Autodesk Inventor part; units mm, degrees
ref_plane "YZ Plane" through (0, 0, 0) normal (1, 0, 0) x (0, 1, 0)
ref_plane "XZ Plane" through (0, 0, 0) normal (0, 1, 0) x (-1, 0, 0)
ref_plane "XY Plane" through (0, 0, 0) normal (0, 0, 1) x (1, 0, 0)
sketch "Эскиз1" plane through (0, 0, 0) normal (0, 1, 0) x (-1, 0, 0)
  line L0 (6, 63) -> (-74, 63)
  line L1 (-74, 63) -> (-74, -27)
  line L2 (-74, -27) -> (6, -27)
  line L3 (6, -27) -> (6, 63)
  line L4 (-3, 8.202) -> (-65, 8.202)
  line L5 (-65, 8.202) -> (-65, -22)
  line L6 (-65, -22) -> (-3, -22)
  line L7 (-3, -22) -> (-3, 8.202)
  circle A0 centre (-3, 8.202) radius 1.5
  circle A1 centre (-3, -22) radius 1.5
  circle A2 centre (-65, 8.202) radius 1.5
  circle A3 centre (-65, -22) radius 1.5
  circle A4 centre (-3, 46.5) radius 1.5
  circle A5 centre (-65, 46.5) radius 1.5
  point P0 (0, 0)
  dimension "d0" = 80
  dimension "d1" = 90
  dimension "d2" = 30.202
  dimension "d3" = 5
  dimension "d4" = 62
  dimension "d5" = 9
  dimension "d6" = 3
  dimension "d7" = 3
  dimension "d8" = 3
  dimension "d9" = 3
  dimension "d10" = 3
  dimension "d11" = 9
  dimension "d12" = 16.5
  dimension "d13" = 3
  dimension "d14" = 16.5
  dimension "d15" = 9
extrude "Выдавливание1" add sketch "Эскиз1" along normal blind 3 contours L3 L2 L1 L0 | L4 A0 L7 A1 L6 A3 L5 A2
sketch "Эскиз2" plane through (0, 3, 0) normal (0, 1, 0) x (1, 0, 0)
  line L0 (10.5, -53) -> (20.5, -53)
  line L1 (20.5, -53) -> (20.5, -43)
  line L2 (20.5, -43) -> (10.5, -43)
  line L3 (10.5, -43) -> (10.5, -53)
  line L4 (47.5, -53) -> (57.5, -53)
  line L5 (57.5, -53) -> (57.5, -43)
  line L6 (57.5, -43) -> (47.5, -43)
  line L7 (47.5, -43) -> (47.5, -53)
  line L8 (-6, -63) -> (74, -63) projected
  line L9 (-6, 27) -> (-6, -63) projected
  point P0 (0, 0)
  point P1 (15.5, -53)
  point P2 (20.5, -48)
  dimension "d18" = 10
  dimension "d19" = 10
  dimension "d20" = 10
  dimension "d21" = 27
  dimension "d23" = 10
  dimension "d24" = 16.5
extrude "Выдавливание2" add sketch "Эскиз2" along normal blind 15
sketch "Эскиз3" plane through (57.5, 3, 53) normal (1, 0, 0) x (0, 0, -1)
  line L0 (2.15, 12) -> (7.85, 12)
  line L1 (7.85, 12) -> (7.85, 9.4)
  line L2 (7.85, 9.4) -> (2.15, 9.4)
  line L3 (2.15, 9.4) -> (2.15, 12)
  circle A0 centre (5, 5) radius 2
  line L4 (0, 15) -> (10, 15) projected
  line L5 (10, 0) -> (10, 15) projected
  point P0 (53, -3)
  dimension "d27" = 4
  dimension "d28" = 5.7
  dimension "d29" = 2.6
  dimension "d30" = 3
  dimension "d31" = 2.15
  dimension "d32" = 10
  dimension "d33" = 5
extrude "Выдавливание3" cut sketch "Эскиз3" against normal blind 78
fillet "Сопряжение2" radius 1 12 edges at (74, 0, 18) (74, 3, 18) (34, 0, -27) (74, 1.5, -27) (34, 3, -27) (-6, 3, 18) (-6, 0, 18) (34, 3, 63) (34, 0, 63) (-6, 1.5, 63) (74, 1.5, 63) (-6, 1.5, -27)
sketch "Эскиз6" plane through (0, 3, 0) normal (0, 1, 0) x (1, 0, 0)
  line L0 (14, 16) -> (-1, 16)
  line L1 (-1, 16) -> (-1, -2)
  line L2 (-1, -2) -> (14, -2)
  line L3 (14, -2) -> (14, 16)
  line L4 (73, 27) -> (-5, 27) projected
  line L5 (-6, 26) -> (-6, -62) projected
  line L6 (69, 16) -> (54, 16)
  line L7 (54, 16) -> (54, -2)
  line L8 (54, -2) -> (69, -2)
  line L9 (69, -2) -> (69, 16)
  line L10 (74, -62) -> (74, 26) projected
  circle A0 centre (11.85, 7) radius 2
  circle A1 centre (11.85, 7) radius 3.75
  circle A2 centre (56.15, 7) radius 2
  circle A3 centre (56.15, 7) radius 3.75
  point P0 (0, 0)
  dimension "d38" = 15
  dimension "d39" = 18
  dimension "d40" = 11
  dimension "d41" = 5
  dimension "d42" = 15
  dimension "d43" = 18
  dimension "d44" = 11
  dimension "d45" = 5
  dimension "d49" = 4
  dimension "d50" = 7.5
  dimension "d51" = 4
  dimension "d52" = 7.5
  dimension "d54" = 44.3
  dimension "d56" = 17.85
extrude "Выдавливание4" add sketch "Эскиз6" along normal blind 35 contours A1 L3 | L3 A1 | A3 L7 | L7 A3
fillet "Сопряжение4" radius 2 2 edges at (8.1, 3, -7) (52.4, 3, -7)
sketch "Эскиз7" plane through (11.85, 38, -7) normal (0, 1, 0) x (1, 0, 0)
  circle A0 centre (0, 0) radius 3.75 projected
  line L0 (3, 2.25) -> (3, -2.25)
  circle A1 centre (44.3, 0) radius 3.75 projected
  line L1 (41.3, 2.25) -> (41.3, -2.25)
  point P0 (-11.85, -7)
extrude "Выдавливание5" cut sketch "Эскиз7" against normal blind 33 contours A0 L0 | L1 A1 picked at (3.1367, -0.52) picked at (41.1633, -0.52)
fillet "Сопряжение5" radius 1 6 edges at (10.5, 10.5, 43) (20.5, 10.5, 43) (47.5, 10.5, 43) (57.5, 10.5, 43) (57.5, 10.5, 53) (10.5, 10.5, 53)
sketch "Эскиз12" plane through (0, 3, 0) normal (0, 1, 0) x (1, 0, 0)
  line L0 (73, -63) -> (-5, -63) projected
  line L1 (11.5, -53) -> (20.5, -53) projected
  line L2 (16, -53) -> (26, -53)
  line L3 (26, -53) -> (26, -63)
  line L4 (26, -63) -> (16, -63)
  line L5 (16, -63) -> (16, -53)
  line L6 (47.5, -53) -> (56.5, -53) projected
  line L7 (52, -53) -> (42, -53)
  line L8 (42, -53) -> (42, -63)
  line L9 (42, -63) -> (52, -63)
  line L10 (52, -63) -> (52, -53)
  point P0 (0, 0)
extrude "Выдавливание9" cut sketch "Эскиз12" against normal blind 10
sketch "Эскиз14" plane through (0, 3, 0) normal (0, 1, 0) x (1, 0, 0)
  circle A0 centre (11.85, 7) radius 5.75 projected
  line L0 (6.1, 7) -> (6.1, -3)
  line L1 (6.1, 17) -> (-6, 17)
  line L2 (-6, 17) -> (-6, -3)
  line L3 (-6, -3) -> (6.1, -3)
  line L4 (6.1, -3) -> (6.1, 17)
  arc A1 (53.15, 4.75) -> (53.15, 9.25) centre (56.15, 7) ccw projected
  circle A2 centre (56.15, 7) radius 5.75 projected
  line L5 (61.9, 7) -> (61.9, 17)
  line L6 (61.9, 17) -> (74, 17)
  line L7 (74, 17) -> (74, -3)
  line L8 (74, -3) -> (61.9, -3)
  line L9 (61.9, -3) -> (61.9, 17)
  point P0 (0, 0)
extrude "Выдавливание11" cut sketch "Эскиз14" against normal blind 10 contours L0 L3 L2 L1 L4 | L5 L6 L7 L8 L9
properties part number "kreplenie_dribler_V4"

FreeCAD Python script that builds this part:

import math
import FreeCAD as App
import Part
import Sketcher
from FreeCAD import Vector


def edges_at(feature, points):
    """Names of the edges that pass closest to the given points."""
    edges = feature.Shape.Edges
    near = lambda p: min(range(len(edges)), key=lambda i: edges[i].distToShape(Part.Vertex(*p))[0])
    return sorted({f"Edge{near(p) + 1}" for p in points})


def add_polygon(sketch, points):
    """Adds a closed chain of lines whose ends are joined by coincident constraints."""
    first, n = sketch.GeometryCount, len(points)
    for a, b in zip(points, points[1:] + points[:1]):
        sketch.addGeometry(Part.LineSegment(App.Vector(*a, 0), App.Vector(*b, 0)), False)
    for i in range(n):
        sketch.addConstraint(Sketcher.Constraint("Coincident", first + i, 2, first + (i + 1) % n, 1))

doc = App.newDocument("Part")
body = doc.addObject("PartDesign::Body", "Body")

sketch1 = doc.addObject("Sketcher::SketchObject", "Sketch")
body.addObject(sketch1)
sketch1.AttachmentSupport = (doc.XZ_Plane, [""])
sketch1.MapMode = "FlatFace"
add_polygon(sketch1, [(-6, -27), (-6, 63), (74, 63), (74, -27)])
sketch1.addGeometry(Part.Circle(Vector(65, 8.202, 0), Vector(0, 0, 1), 1.5), False)
sketch1.addGeometry(Part.Circle(Vector(65, -22, 0), Vector(0, 0, 1), 1.5), False)
sketch1.addGeometry(Part.Circle(Vector(3, -22, 0), Vector(0, 0, 1), 1.5), False)
sketch1.addGeometry(Part.Circle(Vector(3, 8.202, 0), Vector(0, 0, 1), 1.5), False)
sketch1.addGeometry(Part.Circle(Vector(65, 46.5, 0), Vector(0, 0, 1), 1.5), False)
sketch1.addGeometry(Part.Circle(Vector(3, 46.5, 0), Vector(0, 0, 1), 1.5), False)
sketch1.addConstraint(Sketcher.Constraint("Vertical", 0))
sketch1.addConstraint(Sketcher.Constraint("Horizontal", 1))
sketch1.addConstraint(Sketcher.Constraint("Vertical", 2))
sketch1.addConstraint(Sketcher.Constraint("Horizontal", 3))
sketch1.addConstraint(Sketcher.Constraint("Equal", 4, 5))
sketch1.addConstraint(Sketcher.Constraint("Equal", 5, 6))
sketch1.addConstraint(Sketcher.Constraint("Equal", 6, 7))
sketch1.addConstraint(Sketcher.Constraint("Equal", 7, 8))
sketch1.addConstraint(Sketcher.Constraint("Equal", 8, 9))
sketch1.addConstraint(Sketcher.Constraint("Horizontal", 5, 3, 6, 3))
sketch1.addConstraint(Sketcher.Constraint("Horizontal", 4, 3, 7, 3))
sketch1.addConstraint(Sketcher.Constraint("Horizontal", 8, 3, 9, 3))
sketch1.addConstraint(Sketcher.Constraint("Vertical", 4, 3, 5, 3))
sketch1.addConstraint(Sketcher.Constraint("Vertical", 6, 3, 7, 3))
sketch1.addConstraint(Sketcher.Constraint("Vertical", 5, 3, 8, 3))
sketch1.addConstraint(Sketcher.Constraint("Vertical", 7, 3, 9, 3))
sketch1.addConstraint(Sketcher.Constraint("Diameter", 4, 3.0))
sketch1.addConstraint(Sketcher.Constraint("DistanceX", 1, 1, 1, 2, 80.0))
sketch1.addConstraint(Sketcher.Constraint("DistanceY", 0, 1, 0, 2, 90.0))
sketch1.addConstraint(Sketcher.Constraint("DistanceX", -1, 1, 6, 3, 3.0))
sketch1.addConstraint(Sketcher.Constraint("DistanceX", 6, 3, 5, 3, 62.0))
sketch1.addConstraint(Sketcher.Constraint("DistanceX", 0, 2, 9, 3, 9.0))
sketch1.addConstraint(Sketcher.Constraint("DistanceY", 2, 2, 5, 3, 5.0))
sketch1.addConstraint(Sketcher.Constraint("DistanceY", 9, 3, 0, 2, 16.5))
sketch1.addConstraint(Sketcher.Constraint("DistanceY", 5, 3, -1, 1, 22.0))
sketch1.addConstraint(Sketcher.Constraint("DistanceY", 5, 3, 4, 3, 30.202))
pad1 = doc.addObject("PartDesign::Pad", "Pad")
body.addObject(pad1)
pad1.Profile = sketch1
pad1.Length = 3
pad1.Reversed = True

sketch2 = doc.addObject("Sketcher::SketchObject", "Sketch001")
body.addObject(sketch2)
sketch2.AttachmentSupport = (doc.XZ_Plane, [""])
sketch2.MapMode = "FlatFace"
sketch2.AttachmentOffset = App.Placement(Vector(0, 0, -3), App.Rotation())
add_polygon(sketch2, [(10.5, 43), (10.5, 53), (20.5, 53), (20.5, 43)])
add_polygon(sketch2, [(47.5, 43), (47.5, 53), (57.5, 53), (57.5, 43)])
sketch2.addConstraint(Sketcher.Constraint("Vertical", 0))
sketch2.addConstraint(Sketcher.Constraint("Horizontal", 1))
sketch2.addConstraint(Sketcher.Constraint("Vertical", 2))
sketch2.addConstraint(Sketcher.Constraint("Horizontal", 3))
sketch2.addConstraint(Sketcher.Constraint("Vertical", 4))
sketch2.addConstraint(Sketcher.Constraint("Horizontal", 5))
sketch2.addConstraint(Sketcher.Constraint("Vertical", 6))
sketch2.addConstraint(Sketcher.Constraint("Horizontal", 7))
sketch2.addConstraint(Sketcher.Constraint("Horizontal", 1, 2, 4, 2))
sketch2.addConstraint(Sketcher.Constraint("Horizontal", 3, 2, 6, 2))
sketch2.addConstraint(Sketcher.Constraint("Equal", 3, 5))
sketch2.addConstraint(Sketcher.Constraint("Equal", 7, 0))
sketch2.addConstraint(Sketcher.Constraint("DistanceX", 1, 1, 1, 2, 10.0))
sketch2.addConstraint(Sketcher.Constraint("DistanceX", 1, 2, 4, 2, 27.0))
sketch2.addConstraint(Sketcher.Constraint("DistanceY", -1, 1, 0, 2, 53.0))
sketch2.addConstraint(Sketcher.Constraint("DistanceX", -1, 1, 0, 2, 10.5))
pad2 = doc.addObject("PartDesign::Pad", "Pad001")
body.addObject(pad2)
pad2.Profile = sketch2
pad2.Length = 15
pad2.Reversed = True

sketch3 = doc.addObject("Sketcher::SketchObject", "Sketch002")
body.addObject(sketch3)
sketch3.AttachmentSupport = (doc.YZ_Plane, [""])
sketch3.MapMode = "FlatFace"
sketch3.AttachmentOffset = App.Placement(Vector(0, 0, 57.5), App.Rotation())
add_polygon(sketch3, [(15, 45.15), (15, 50.85), (12.4, 50.85), (12.4, 45.15)])
sketch3.addGeometry(Part.Circle(Vector(8, 48, 0), Vector(0, 0, 1), 2), False)
sketch3.addConstraint(Sketcher.Constraint("Vertical", 0))
sketch3.addConstraint(Sketcher.Constraint("Horizontal", 1))
sketch3.addConstraint(Sketcher.Constraint("Vertical", 2))
sketch3.addConstraint(Sketcher.Constraint("Horizontal", 3))
sketch3.addConstraint(Sketcher.Constraint("Diameter", 4, 4.0))
sketch3.addConstraint(Sketcher.Constraint("DistanceX", 1, 2, 1, 1, 2.6))
sketch3.addConstraint(Sketcher.Constraint("DistanceY", 0, 1, 0, 2, 5.7))
sketch3.addConstraint(Sketcher.Constraint("DistanceX", -1, 1, 4, 3, 8.0))
sketch3.addConstraint(Sketcher.Constraint("DistanceY", -1, 1, 4, 3, 48.0))
sketch3.addConstraint(Sketcher.Constraint("DistanceX", -1, 1, 0, 2, 15.0))
sketch3.addConstraint(Sketcher.Constraint("DistanceY", -1, 1, 0, 2, 50.85))
pocket1 = doc.addObject("PartDesign::Pocket", "Pocket")
body.addObject(pocket1)
pocket1.Profile = sketch3
pocket1.Length = 78
doc.recompute()

fillet = doc.addObject("PartDesign::Fillet", "Fillet")
body.addObject(fillet)
fillet.Base = (pocket1, edges_at(pocket1, [
    (74, 0, 18),
    (74, 3, 18),
    (34, 0, -27),
    (74, 1.5, -27),
    (34, 3, -27),
    (-6, 3, 18),
    (-6, 0, 18),
    (34, 3, 63),
    (34, 0, 63),
    (-6, 1.5, 63),
    (74, 1.5, 63),
    (-6, 1.5, -27),
]))
fillet.Radius = 1

sketch4 = doc.addObject("Sketcher::SketchObject", "Sketch003")
body.addObject(sketch4)
sketch4.AttachmentSupport = (doc.XZ_Plane, [""])
sketch4.MapMode = "FlatFace"
sketch4.AttachmentOffset = App.Placement(Vector(0, 0, -3), App.Rotation())
sketch4.addGeometry(Part.Circle(Vector(11.85, -7, 0), Vector(0, 0, 1), 3.75), False)
sketch4.addGeometry(Part.Circle(Vector(11.85, -7, 0), Vector(0, 0, 1), 2), False)
sketch4.addGeometry(Part.Circle(Vector(56.15, -7, 0), Vector(0, 0, 1), 3.75), False)
sketch4.addGeometry(Part.Circle(Vector(56.15, -7, 0), Vector(0, 0, 1), 2), False)
sketch4.addConstraint(Sketcher.Constraint("Coincident", 1, 3, 0, 3))
sketch4.addConstraint(Sketcher.Constraint("Coincident", 3, 3, 2, 3))
sketch4.addConstraint(Sketcher.Constraint("Equal", 0, 2))
sketch4.addConstraint(Sketcher.Constraint("Equal", 1, 3))
sketch4.addConstraint(Sketcher.Constraint("Horizontal", 1, 3, 2, 3))
sketch4.addConstraint(Sketcher.Constraint("Diameter", 1, 4.0))
sketch4.addConstraint(Sketcher.Constraint("Diameter", 0, 7.5))
sketch4.addConstraint(Sketcher.Constraint("DistanceX", 0, 3, 2, 3, 44.3))
sketch4.addConstraint(Sketcher.Constraint("DistanceY", 0, 3, -1, 1, 7.0))
sketch4.addConstraint(Sketcher.Constraint("DistanceX", -1, 1, 0, 3, 11.85))
pad3 = doc.addObject("PartDesign::Pad", "Pad002")
body.addObject(pad3)
pad3.Profile = sketch4
pad3.Length = 35
pad3.Reversed = True
doc.recompute()

fillet2 = doc.addObject("PartDesign::Fillet", "Fillet001")
body.addObject(fillet2)
fillet2.Base = (pad3, edges_at(pad3, [(8.1, 3, -7), (52.4, 3, -7)]))
fillet2.Radius = 2

sketch5 = doc.addObject("Sketcher::SketchObject", "Sketch004")
body.addObject(sketch5)
sketch5.AttachmentSupport = (doc.XZ_Plane, [""])
sketch5.MapMode = "FlatFace"
sketch5.AttachmentOffset = App.Placement(Vector(0, 0, -38), App.Rotation())
sketch5.addGeometry(Part.ArcOfCircle(Part.Circle(Vector(11.85, -7, 0), Vector(0, 0, 1), 3.75), math.radians(-36.869898), math.radians(36.869898)), False)
sketch5.addGeometry(Part.LineSegment(Vector(14.85, -9.25, 0), Vector(14.85, -4.75, 0)), False)
sketch5.addGeometry(Part.LineSegment(Vector(53.15, -4.75, 0), Vector(53.15, -9.25, 0)), False)
sketch5.addGeometry(Part.ArcOfCircle(Part.Circle(Vector(56.15, -7, 0), Vector(0, 0, 1), 3.75), math.radians(143.130102), math.radians(216.869898)), False)
sketch5.addConstraint(Sketcher.Constraint("Coincident", 0, 1, 1, 1))
sketch5.addConstraint(Sketcher.Constraint("Coincident", 1, 2, 0, 2))
sketch5.addConstraint(Sketcher.Constraint("Coincident", 2, 1, 3, 1))
sketch5.addConstraint(Sketcher.Constraint("Coincident", 3, 2, 2, 2))
sketch5.addConstraint(Sketcher.Constraint("Vertical", 1))
sketch5.addConstraint(Sketcher.Constraint("Vertical", 2))
sketch5.addConstraint(Sketcher.Constraint("Equal", 0, 3))
sketch5.addConstraint(Sketcher.Constraint("Horizontal", 0, 3, 3, 3))
sketch5.addConstraint(Sketcher.Constraint("Horizontal", 1, 2, 2, 1))
sketch5.addConstraint(Sketcher.Constraint("Radius", 0, 3.75))
sketch5.addConstraint(Sketcher.Constraint("DistanceY", 1, 1, 1, 2, 4.5))
sketch5.addConstraint(Sketcher.Constraint("DistanceY", 0, 3, -1, 1, 7.0))
sketch5.addConstraint(Sketcher.Constraint("DistanceX", 0, 3, 3, 3, 44.3))
sketch5.addConstraint(Sketcher.Constraint("DistanceX", -1, 1, 0, 3, 11.85))
pocket2 = doc.addObject("PartDesign::Pocket", "Pocket001")
body.addObject(pocket2)
pocket2.Profile = sketch5
pocket2.Length = 33
pocket2.Reversed = True
doc.recompute()

fillet3 = doc.addObject("PartDesign::Fillet", "Fillet002")
body.addObject(fillet3)
fillet3.Base = (pocket2, edges_at(pocket2, [
    (10.5, 10.5, 43),
    (20.5, 10.5, 43),
    (47.5, 10.5, 43),
    (57.5, 10.5, 43),
    (57.5, 10.5, 53),
    (10.5, 10.5, 53),
]))
fillet3.Radius = 1

sketch6 = doc.addObject("Sketcher::SketchObject", "Sketch005")
body.addObject(sketch6)
sketch6.AttachmentSupport = (doc.XZ_Plane, [""])
sketch6.MapMode = "FlatFace"
sketch6.AttachmentOffset = App.Placement(Vector(0, 0, -3), App.Rotation())
add_polygon(sketch6, [(16, 63), (26, 63), (26, 53), (16, 53)])
add_polygon(sketch6, [(42, 63), (52, 63), (52, 53), (42, 53)])
sketch6.addConstraint(Sketcher.Constraint("Horizontal", 0))
sketch6.addConstraint(Sketcher.Constraint("Vertical", 1))
sketch6.addConstraint(Sketcher.Constraint("Horizontal", 2))
sketch6.addConstraint(Sketcher.Constraint("Vertical", 3))
sketch6.addConstraint(Sketcher.Constraint("Horizontal", 4))
sketch6.addConstraint(Sketcher.Constraint("Vertical", 5))
sketch6.addConstraint(Sketcher.Constraint("Horizontal", 6))
sketch6.addConstraint(Sketcher.Constraint("Vertical", 7))
sketch6.addConstraint(Sketcher.Constraint("Horizontal", 3, 2, 4, 2))
sketch6.addConstraint(Sketcher.Constraint("Horizontal", 2, 2, 5, 2))
sketch6.addConstraint(Sketcher.Constraint("Equal", 2, 4))
sketch6.addConstraint(Sketcher.Constraint("Equal", 6, 1))
sketch6.addConstraint(Sketcher.Constraint("DistanceX", 0, 1, 0, 2, 10.0))
sketch6.addConstraint(Sketcher.Constraint("DistanceX", -1, 1, 0, 2, 26.0))
sketch6.addConstraint(Sketcher.Constraint("DistanceY", -1, 1, 0, 2, 63.0))
sketch6.addConstraint(Sketcher.Constraint("DistanceX", -1, 1, 4, 2, 52.0))
pocket3 = doc.addObject("PartDesign::Pocket", "Pocket002")
body.addObject(pocket3)
pocket3.Profile = sketch6
pocket3.Length = 10
pocket3.Reversed = True

sketch7 = doc.addObject("Sketcher::SketchObject", "Sketch006")
body.addObject(sketch7)
sketch7.AttachmentSupport = (doc.XZ_Plane, [""])
sketch7.MapMode = "FlatFace"
sketch7.AttachmentOffset = App.Placement(Vector(0, 0, -3), App.Rotation())
add_polygon(sketch7, [(6.1, 3), (6.1, -17), (-6, -17), (-6, 3)])
add_polygon(sketch7, [(61.9, -17), (61.9, 3), (74, 3), (74, -17)])
sketch7.addConstraint(Sketcher.Constraint("Vertical", 0))
sketch7.addConstraint(Sketcher.Constraint("Horizontal", 1))
sketch7.addConstraint(Sketcher.Constraint("Vertical", 2))
sketch7.addConstraint(Sketcher.Constraint("Horizontal", 3))
sketch7.addConstraint(Sketcher.Constraint("Vertical", 4))
sketch7.addConstraint(Sketcher.Constraint("Horizontal", 5))
sketch7.addConstraint(Sketcher.Constraint("Vertical", 6))
sketch7.addConstraint(Sketcher.Constraint("Horizontal", 7))
sketch7.addConstraint(Sketcher.Constraint("Horizontal", 3, 2, 4, 2))
sketch7.addConstraint(Sketcher.Constraint("Horizontal", 1, 2, 6, 2))
sketch7.addConstraint(Sketcher.Constraint("Equal", 3, 5))
sketch7.addConstraint(Sketcher.Constraint("DistanceY", 0, 2, 0, 1, 20.0))
sketch7.addConstraint(Sketcher.Constraint("DistanceX", 1, 2, 1, 1, 12.1))
sketch7.addConstraint(Sketcher.Constraint("DistanceY", 0, 2, -1, 1, 17.0))
sketch7.addConstraint(Sketcher.Constraint("DistanceX", 1, 2, -1, 1, 6.0))
sketch7.addConstraint(Sketcher.Constraint("DistanceX", -1, 1, 5, 2, 74.0))
pocket4 = doc.addObject("PartDesign::Pocket", "Pocket003")
body.addObject(pocket4)
pocket4.Profile = sketch7
pocket4.Length = 10
pocket4.Reversed = True

doc.recompute()
